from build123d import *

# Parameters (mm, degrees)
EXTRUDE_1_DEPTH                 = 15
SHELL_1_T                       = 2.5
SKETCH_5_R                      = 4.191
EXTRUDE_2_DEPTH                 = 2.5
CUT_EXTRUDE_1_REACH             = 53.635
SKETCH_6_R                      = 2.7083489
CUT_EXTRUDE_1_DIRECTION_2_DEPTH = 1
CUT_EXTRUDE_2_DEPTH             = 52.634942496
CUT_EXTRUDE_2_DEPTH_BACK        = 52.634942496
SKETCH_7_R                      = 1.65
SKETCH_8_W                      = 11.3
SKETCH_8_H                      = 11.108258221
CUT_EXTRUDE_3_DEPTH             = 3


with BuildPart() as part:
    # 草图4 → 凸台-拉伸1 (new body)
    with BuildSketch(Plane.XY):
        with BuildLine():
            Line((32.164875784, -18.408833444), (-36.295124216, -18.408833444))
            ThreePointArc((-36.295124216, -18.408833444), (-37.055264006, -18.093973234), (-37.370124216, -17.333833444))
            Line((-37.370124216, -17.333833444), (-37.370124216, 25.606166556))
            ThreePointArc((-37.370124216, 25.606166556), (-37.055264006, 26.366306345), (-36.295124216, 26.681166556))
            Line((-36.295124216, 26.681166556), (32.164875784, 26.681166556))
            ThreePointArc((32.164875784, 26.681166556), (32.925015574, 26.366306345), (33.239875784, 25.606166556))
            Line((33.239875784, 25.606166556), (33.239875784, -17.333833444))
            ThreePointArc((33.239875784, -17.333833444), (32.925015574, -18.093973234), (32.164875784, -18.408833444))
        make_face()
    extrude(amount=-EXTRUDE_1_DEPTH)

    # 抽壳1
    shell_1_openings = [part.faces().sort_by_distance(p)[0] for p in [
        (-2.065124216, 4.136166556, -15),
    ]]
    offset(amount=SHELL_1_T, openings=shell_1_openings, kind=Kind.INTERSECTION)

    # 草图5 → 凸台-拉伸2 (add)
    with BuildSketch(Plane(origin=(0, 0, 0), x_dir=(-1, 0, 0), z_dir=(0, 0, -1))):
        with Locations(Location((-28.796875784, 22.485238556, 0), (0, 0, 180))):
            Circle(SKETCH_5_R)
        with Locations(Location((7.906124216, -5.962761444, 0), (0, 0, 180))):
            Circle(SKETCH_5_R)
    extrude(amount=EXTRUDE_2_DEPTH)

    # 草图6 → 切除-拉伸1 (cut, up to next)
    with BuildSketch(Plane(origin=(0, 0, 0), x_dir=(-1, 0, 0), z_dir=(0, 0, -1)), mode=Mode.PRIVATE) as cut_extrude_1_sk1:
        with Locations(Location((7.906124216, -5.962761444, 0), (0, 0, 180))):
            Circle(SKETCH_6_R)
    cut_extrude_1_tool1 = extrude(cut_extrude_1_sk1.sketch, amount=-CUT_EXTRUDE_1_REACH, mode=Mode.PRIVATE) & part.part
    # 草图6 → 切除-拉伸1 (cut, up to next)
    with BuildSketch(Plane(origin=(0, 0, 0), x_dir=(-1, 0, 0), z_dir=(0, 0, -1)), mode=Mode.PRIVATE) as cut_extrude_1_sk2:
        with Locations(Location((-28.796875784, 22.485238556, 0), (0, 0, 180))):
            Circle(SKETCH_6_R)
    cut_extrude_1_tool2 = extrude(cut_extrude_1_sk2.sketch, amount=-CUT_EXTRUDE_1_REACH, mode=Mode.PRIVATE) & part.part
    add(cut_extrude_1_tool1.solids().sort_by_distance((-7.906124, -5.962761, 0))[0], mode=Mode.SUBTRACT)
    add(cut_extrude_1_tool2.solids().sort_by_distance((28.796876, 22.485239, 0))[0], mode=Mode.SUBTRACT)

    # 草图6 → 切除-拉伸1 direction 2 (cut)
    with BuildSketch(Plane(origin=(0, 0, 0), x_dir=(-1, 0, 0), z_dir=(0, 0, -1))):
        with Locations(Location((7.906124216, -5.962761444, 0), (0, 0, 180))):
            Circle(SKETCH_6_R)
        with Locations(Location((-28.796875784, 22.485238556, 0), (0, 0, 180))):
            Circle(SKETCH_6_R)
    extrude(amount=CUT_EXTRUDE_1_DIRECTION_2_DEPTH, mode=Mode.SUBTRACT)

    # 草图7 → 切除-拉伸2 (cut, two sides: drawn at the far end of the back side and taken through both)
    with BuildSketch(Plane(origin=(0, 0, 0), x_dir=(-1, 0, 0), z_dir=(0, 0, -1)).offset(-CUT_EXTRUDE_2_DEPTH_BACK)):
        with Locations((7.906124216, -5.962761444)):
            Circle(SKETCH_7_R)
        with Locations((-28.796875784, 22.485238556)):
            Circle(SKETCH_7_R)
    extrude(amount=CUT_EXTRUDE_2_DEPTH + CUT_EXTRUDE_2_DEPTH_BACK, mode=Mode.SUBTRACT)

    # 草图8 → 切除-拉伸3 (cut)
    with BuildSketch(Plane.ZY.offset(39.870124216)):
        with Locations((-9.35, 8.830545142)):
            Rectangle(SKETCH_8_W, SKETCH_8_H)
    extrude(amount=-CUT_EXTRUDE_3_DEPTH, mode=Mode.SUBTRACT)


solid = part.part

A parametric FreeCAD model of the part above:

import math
import FreeCAD as App
import Part
import Sketcher

V = App.Vector


def faces_at(feature, points):
    """Names of the faces that lie closest to the given points."""
    faces = feature.Shape.Faces
    near = lambda p: min(range(len(faces)), key=lambda i: faces[i].distToShape(Part.Vertex(*p))[0])
    return sorted({f"Face{near(p) + 1}" for p in points})


def add_polygon(sketch, points):
    """Adds a closed chain of lines whose ends are joined by coincident constraints."""
    first, n = sketch.GeometryCount, len(points)
    for a, b in zip(points, points[1:] + points[:1]):
        sketch.addGeometry(Part.LineSegment(App.Vector(*a, 0), App.Vector(*b, 0)), False)
    for i in range(n):
        sketch.addConstraint(Sketcher.Constraint("Coincident", first + i, 2, first + (i + 1) % n, 1))

doc = App.newDocument("Part")
body = doc.addObject("PartDesign::Body", "Body")

sketch1 = body.newObject("Sketcher::SketchObject", "Sketch")
sketch1.AttachmentSupport = (doc.getObject("XY_Plane"), [""])
sketch1.MapMode = "FlatFace"
sketch1.addGeometry(Part.LineSegment(V(-36.295124, -18.408833, 0), V(32.164876, -18.408833, 0)), False)
sketch1.addGeometry(Part.ArcOfCircle(Part.Circle(V(32.164876, -17.333833, 0), V(0, 0, 1), 1.075), math.radians(-90), math.radians(0)), False)
sketch1.addGeometry(Part.LineSegment(V(33.239876, -17.333833, 0), V(33.239876, 25.606167, 0)), False)
sketch1.addGeometry(Part.ArcOfCircle(Part.Circle(V(32.164876, 25.606167, 0), V(0, 0, 1), 1.075), math.radians(0), math.radians(90)), False)
sketch1.addGeometry(Part.LineSegment(V(32.164876, 26.681167, 0), V(-36.295124, 26.681167, 0)), False)
sketch1.addGeometry(Part.ArcOfCircle(Part.Circle(V(-36.295124, 25.606167, 0), V(0, 0, 1), 1.075), math.radians(90), math.radians(180)), False)
sketch1.addGeometry(Part.LineSegment(V(-37.370124, 25.606167, 0), V(-37.370124, -17.333833, 0)), False)
sketch1.addGeometry(Part.ArcOfCircle(Part.Circle(V(-36.295124, -17.333833, 0), V(0, 0, 1), 1.075), math.radians(180), math.radians(270)), False)
sketch1.addConstraint(Sketcher.Constraint("Tangent", 0, 2, 1, 1))
sketch1.addConstraint(Sketcher.Constraint("Tangent", 1, 2, 2, 1))
sketch1.addConstraint(Sketcher.Constraint("Tangent", 2, 2, 3, 1))
sketch1.addConstraint(Sketcher.Constraint("Tangent", 3, 2, 4, 1))
sketch1.addConstraint(Sketcher.Constraint("Tangent", 4, 2, 5, 1))
sketch1.addConstraint(Sketcher.Constraint("Tangent", 5, 2, 6, 1))
sketch1.addConstraint(Sketcher.Constraint("Tangent", 6, 2, 7, 1))
sketch1.addConstraint(Sketcher.Constraint("Tangent", 7, 2, 0, 1))
sketch1.addConstraint(Sketcher.Constraint("Horizontal", 0))
sketch1.addConstraint(Sketcher.Constraint("Vertical", 2))
sketch1.addConstraint(Sketcher.Constraint("Horizontal", 4))
sketch1.addConstraint(Sketcher.Constraint("Vertical", 6))
sketch1.addConstraint(Sketcher.Constraint("Equal", 1, 3))
sketch1.addConstraint(Sketcher.Constraint("Equal", 3, 5))
sketch1.addConstraint(Sketcher.Constraint("Equal", 5, 7))
sketch1.addConstraint(Sketcher.Constraint("Radius", 1, 1.075))
sketch1.addConstraint(Sketcher.Constraint("DistanceX", 0, 1, 0, 2, 68.46))
sketch1.addConstraint(Sketcher.Constraint("DistanceY", 2, 1, 2, 2, 42.94))
sketch1.addConstraint(Sketcher.Constraint("DistanceX", -1, 1, 1, 3, 32.164876))
sketch1.addConstraint(Sketcher.Constraint("DistanceY", 1, 3, -1, 1, 17.333833))
pad1 = body.newObject("PartDesign::Pad", "Pad")
pad1.Profile = sketch1
pad1.Length = 15
pad1.Reversed = True
doc.recompute()

thickness = body.newObject("PartDesign::Thickness", "Thickness")
thickness.Base = (pad1, faces_at(pad1, [(-2.065, 4.136, -15)]))
thickness.Value = 2.5
thickness.Reversed = False
thickness.Join = "Intersection"

sketch2 = body.newObject("Sketcher::SketchObject", "Sketch001")
sketch2.AttachmentSupport = (doc.getObject("XY_Plane"), [""])
sketch2.MapMode = "FlatFace"
sketch2.addGeometry(Part.Circle(V(28.796876, 22.485239, 0), V(0, 0, 1), 4.191), False)
sketch2.addGeometry(Part.Circle(V(-7.906124, -5.962761, 0), V(0, 0, 1), 4.191), False)
sketch2.addConstraint(Sketcher.Constraint("Equal", 0, 1))
sketch2.addConstraint(Sketcher.Constraint("Diameter", 0, 8.382))
sketch2.addConstraint(Sketcher.Constraint("DistanceX", 1, 3, 0, 3, 36.703))
sketch2.addConstraint(Sketcher.Constraint("DistanceY", 1, 3, 0, 3, 28.448))
sketch2.addConstraint(Sketcher.Constraint("DistanceY", -1, 1, 0, 3, 22.485239))
sketch2.addConstraint(Sketcher.Constraint("DistanceX", -1, 1, 0, 3, 28.796876))
pad2 = body.newObject("PartDesign::Pad", "Pad001")
pad2.Profile = sketch2
pad2.Length = 2.5
pad2.Reversed = True

sketch3 = body.newObject("Sketcher::SketchObject", "Sketch002")
sketch3.AttachmentSupport = (doc.getObject("XY_Plane"), [""])
sketch3.MapMode = "FlatFace"
sketch3.addGeometry(Part.Circle(V(-7.906124, -5.962761, 0), V(0, 0, 1), 2.708349), False)
sketch3.addConstraint(Sketcher.Constraint("Diameter", 0, 5.416698))
sketch3.addConstraint(Sketcher.Constraint("DistanceY", 0, 3, -1, 1, 5.962761))
sketch3.addConstraint(Sketcher.Constraint("DistanceX", 0, 3, -1, 1, 7.906124))
pocket1 = body.newObject("PartDesign::Pocket", "Pocket")
pocket1.Profile = sketch3
pocket1.Type = "UpToFirst"
pocket1.Reversed = True

sketch4 = body.newObject("Sketcher::SketchObject", "Sketch003")
sketch4.AttachmentSupport = (doc.getObject("XY_Plane"), [""])
sketch4.MapMode = "FlatFace"
sketch4.addGeometry(Part.Circle(V(28.796876, 22.485239, 0), V(0, 0, 1), 2.708349), False)
sketch4.addConstraint(Sketcher.Constraint("Diameter", 0, 5.416698))
sketch4.addConstraint(Sketcher.Constraint("DistanceY", -1, 1, 0, 3, 22.485239))
sketch4.addConstraint(Sketcher.Constraint("DistanceX", -1, 1, 0, 3, 28.796876))
pocket2 = body.newObject("PartDesign::Pocket", "Pocket001")
pocket2.Profile = sketch4
pocket2.Type = "UpToFirst"
pocket2.Reversed = True

sketch5 = body.newObject("Sketcher::SketchObject", "Sketch004")
sketch5.AttachmentSupport = (doc.getObject("XY_Plane"), [""])
sketch5.MapMode = "FlatFace"
sketch5.addGeometry(Part.Circle(V(-7.906124, -5.962761, 0), V(0, 0, 1), 2.708349), False)
sketch5.addGeometry(Part.Circle(V(28.796876, 22.485239, 0), V(0, 0, 1), 2.708349), False)
sketch5.addConstraint(Sketcher.Constraint("Equal", 0, 1))
sketch5.addConstraint(Sketcher.Constraint("Diameter", 0, 5.416698))
sketch5.addConstraint(Sketcher.Constraint("DistanceX", 0, 3, 1, 3, 36.703))
sketch5.addConstraint(Sketcher.Constraint("DistanceY", 0, 3, 1, 3, 28.448))
sketch5.addConstraint(Sketcher.Constraint("DistanceY", 0, 3, -1, 1, 5.962761))
sketch5.addConstraint(Sketcher.Constraint("DistanceX", 0, 3, -1, 1, 7.906124))
pocket3 = body.newObject("PartDesign::Pocket", "Pocket002")
pocket3.Profile = sketch5
pocket3.Length = 1

sketch6 = body.newObject("Sketcher::SketchObject", "Sketch005")
sketch6.AttachmentSupport = (doc.getObject("XY_Plane"), [""])
sketch6.MapMode = "FlatFace"
sketch6.addGeometry(Part.Circle(V(-7.906124, -5.962761, 0), V(0, 0, 1), 1.65), False)
sketch6.addGeometry(Part.Circle(V(28.796876, 22.485239, 0), V(0, 0, 1), 1.65), False)
sketch6.addConstraint(Sketcher.Constraint("Equal", 0, 1))
sketch6.addConstraint(Sketcher.Constraint("Diameter", 0, 3.3))
sketch6.addConstraint(Sketcher.Constraint("DistanceX", 0, 3, 1, 3, 36.703))
sketch6.addConstraint(Sketcher.Constraint("DistanceY", 0, 3, 1, 3, 28.448))
sketch6.addConstraint(Sketcher.Constraint("DistanceY", 0, 3, -1, 1, 5.962761))
sketch6.addConstraint(Sketcher.Constraint("DistanceX", 0, 3, -1, 1, 7.906124))
pocket4 = body.newObject("PartDesign::Pocket", "Pocket003")
pocket4.Profile = sketch6
pocket4.Type = "ThroughAll"
pocket4.Midplane = True

sketch7 = body.newObject("Sketcher::SketchObject", "Sketch006")
sketch7.AttachmentSupport = (doc.getObject("YZ_Plane"), [""])
sketch7.MapMode = "FlatFace"
sketch7.AttachmentOffset = App.Placement(V(0, 0, -39.870124), App.Rotation())
add_polygon(sketch7, [(14.384674, -15), (3.276416, -15), (3.276416, -3.7), (14.384674, -3.7)])
sketch7.addConstraint(Sketcher.Constraint("Horizontal", 0))
sketch7.addConstraint(Sketcher.Constraint("Vertical", 1))
sketch7.addConstraint(Sketcher.Constraint("Horizontal", 2))
sketch7.addConstraint(Sketcher.Constraint("Vertical", 3))
sketch7.addConstraint(Sketcher.Constraint("DistanceY", 1, 1, 1, 2, 11.3))
sketch7.addConstraint(Sketcher.Constraint("DistanceY", 0, 2, -1, 1, 15.0))
sketch7.addConstraint(Sketcher.Constraint("DistanceX", 0, 2, 0, 1, 11.108258))
sketch7.addConstraint(Sketcher.Constraint("DistanceX", -1, 1, 0, 2, 3.276416))
pocket5 = body.newObject("PartDesign::Pocket", "Pocket004")
pocket5.Profile = sketch7
pocket5.Length = 3
pocket5.Reversed = True

doc.recompute()
